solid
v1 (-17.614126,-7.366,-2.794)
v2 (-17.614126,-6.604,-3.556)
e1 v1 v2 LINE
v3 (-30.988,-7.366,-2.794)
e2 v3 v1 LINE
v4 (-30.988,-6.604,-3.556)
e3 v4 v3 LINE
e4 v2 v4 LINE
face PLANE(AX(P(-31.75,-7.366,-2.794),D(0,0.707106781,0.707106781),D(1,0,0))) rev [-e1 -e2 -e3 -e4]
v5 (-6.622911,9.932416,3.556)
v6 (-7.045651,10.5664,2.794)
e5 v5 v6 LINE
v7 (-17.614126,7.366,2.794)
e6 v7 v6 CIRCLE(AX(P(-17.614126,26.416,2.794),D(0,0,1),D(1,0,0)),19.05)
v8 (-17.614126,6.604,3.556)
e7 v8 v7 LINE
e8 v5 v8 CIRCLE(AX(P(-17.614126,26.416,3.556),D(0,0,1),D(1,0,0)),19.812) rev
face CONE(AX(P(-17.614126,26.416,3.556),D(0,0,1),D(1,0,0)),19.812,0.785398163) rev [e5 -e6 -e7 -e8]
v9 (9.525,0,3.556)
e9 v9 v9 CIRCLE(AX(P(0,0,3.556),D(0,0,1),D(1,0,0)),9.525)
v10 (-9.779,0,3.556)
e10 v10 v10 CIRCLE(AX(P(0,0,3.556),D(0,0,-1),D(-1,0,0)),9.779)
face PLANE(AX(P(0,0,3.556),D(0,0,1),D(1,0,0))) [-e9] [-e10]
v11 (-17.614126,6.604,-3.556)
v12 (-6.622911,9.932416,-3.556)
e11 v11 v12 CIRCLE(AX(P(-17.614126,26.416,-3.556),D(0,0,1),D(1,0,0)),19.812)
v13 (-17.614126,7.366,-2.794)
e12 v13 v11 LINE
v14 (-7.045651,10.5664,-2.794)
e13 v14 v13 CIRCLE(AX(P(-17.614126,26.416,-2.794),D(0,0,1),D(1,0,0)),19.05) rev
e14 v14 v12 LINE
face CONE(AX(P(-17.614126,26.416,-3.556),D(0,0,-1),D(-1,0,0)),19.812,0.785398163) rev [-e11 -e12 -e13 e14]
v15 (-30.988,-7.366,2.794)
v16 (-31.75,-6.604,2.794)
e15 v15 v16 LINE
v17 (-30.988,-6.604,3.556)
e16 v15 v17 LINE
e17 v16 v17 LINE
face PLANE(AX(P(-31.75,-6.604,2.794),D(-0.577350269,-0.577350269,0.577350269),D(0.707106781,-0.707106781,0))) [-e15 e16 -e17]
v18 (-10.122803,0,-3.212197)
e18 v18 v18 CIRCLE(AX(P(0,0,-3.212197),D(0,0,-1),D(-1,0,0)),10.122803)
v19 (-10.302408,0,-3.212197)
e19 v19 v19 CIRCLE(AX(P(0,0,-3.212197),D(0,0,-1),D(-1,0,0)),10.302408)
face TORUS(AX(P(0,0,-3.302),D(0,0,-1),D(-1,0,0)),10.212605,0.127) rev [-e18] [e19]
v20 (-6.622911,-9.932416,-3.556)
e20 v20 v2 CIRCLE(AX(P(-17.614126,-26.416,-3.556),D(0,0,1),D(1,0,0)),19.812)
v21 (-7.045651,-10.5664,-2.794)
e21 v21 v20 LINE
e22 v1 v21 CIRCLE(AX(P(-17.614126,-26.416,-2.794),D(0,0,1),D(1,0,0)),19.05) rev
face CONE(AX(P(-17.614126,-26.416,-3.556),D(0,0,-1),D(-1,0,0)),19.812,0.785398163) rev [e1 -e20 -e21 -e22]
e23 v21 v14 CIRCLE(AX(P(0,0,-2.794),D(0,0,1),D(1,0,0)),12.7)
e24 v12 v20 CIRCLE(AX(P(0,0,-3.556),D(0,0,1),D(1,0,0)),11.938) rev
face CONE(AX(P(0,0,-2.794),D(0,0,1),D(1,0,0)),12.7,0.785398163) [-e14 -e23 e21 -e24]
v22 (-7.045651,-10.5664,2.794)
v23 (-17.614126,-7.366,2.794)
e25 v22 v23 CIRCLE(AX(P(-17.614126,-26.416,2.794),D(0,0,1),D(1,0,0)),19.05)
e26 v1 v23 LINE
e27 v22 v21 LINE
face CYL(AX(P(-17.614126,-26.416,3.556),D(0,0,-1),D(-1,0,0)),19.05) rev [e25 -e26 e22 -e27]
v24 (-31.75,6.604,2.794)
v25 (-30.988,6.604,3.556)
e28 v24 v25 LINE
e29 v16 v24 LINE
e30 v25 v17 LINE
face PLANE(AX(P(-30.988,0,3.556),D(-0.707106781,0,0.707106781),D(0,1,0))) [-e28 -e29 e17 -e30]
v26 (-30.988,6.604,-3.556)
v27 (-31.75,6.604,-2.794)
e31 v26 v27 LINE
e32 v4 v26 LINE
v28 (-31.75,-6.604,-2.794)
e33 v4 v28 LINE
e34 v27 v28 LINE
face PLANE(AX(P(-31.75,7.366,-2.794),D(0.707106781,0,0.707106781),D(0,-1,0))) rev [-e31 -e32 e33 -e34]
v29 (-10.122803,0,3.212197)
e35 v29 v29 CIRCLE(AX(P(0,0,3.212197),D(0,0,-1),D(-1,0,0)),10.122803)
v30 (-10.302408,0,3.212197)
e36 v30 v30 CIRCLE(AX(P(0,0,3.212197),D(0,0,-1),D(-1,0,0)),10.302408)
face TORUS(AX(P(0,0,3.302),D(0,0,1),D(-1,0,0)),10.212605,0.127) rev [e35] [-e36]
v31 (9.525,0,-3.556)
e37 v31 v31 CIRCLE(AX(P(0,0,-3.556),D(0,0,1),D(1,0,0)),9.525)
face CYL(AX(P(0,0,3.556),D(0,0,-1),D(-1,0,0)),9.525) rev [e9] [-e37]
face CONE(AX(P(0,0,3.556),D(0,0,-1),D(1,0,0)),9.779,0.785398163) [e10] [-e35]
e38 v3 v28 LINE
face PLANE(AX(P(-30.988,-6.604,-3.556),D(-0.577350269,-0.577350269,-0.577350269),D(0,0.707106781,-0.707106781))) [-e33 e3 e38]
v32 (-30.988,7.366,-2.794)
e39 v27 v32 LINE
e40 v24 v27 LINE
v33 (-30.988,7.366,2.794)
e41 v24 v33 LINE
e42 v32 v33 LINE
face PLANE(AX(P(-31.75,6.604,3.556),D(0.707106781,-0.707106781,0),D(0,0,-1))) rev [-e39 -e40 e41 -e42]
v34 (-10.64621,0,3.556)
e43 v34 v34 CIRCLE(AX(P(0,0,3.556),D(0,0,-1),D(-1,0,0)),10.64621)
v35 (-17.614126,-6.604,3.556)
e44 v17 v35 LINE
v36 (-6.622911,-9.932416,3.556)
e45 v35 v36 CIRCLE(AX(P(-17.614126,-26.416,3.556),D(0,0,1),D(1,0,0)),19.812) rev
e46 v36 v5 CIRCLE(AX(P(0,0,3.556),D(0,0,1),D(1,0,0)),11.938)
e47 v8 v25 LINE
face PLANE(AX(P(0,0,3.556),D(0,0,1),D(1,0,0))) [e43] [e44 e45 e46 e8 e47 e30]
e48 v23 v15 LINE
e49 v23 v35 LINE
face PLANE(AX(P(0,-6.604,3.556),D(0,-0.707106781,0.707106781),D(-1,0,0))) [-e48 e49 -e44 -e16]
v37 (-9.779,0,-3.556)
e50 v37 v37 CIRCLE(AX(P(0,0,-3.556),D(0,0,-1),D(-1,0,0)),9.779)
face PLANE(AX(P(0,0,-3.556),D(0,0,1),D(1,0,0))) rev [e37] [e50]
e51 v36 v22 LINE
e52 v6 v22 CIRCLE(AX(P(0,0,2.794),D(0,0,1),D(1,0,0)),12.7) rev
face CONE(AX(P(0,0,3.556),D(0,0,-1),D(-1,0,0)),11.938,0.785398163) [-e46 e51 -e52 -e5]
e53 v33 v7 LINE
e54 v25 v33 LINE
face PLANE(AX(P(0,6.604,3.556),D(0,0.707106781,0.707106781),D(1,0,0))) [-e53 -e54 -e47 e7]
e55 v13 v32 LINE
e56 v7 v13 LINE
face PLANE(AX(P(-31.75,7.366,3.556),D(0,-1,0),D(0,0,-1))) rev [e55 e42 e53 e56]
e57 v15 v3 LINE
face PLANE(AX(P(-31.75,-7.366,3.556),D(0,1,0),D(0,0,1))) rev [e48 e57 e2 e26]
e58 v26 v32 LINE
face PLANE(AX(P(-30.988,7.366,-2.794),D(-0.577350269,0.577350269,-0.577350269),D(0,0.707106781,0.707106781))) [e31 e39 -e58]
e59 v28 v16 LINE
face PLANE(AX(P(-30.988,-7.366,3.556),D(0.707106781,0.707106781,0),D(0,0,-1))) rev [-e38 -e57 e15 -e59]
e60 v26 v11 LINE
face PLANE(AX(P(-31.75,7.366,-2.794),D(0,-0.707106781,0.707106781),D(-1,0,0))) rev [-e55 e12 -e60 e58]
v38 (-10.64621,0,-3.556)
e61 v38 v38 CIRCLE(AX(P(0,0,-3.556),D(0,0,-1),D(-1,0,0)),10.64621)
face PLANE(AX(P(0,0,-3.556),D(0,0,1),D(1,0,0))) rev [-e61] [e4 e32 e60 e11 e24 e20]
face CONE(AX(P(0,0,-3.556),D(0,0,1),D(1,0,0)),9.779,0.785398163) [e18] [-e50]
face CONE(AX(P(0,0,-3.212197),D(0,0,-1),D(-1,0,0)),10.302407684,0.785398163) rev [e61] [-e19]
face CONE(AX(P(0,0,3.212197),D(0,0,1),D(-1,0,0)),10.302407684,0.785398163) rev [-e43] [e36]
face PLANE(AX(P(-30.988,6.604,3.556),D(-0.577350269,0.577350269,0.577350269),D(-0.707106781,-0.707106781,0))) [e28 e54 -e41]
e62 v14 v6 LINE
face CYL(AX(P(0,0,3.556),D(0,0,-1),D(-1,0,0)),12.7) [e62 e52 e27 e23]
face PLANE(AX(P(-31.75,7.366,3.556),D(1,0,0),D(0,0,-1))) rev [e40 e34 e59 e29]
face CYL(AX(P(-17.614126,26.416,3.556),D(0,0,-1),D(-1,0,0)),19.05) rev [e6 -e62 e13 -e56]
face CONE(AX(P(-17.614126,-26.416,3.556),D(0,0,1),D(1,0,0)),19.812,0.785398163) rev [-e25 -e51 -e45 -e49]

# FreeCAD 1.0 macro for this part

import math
import FreeCAD as App
import Part
import Sketcher
Q = App.Units.Quantity


def edges_at(feature, points):
    """Names of the edges that pass closest to the given points."""
    edges = feature.Shape.Edges
    near = lambda p: min(range(len(edges)), key=lambda i: edges[i].distToShape(Part.Vertex(*p))[0])
    return sorted({f"Edge{near(p) + 1}" for p in points})

doc = App.newDocument("Part")
body = doc.addObject("PartDesign::Body", "Body")

sketch1 = body.newObject("Sketcher::SketchObject", "Sketch")
sketch1.AttachmentSupport = (doc.getObject("XY_Plane"), [""])
sketch1.MapMode = "FlatFace"
sketch1.addGeometry(Part.LineSegment(App.Vector(-32, 7, 0), App.Vector(-32, -7, 0)), False)
sketch1.addGeometry(Part.LineSegment(App.Vector(-32, -7, 0), App.Vector(-10, -7, 0)), False)
sketch1.addGeometry(Part.ArcOfCircle(Part.Circle(App.Vector(0, 0, 0), App.Vector(0, 0, 1), 13), math.radians(-145), math.radians(145)), False)
sketch1.addGeometry(Part.LineSegment(App.Vector(-10, 7, 0), App.Vector(-32, 7, 0)), False)
sketch1.addGeometry(Part.Circle(App.Vector(0, 0, 0), App.Vector(0, 0, 1), 10), False)
sketch1.addConstraint(Sketcher.Constraint("Coincident", 0, 2, 1, 1))
sketch1.addConstraint(Sketcher.Constraint("Coincident", 1, 2, 2, 1))
sketch1.addConstraint(Sketcher.Constraint("Coincident", 2, 2, 3, 1))
sketch1.addConstraint(Sketcher.Constraint("Coincident", 3, 2, 0, 1))
sketch1.addConstraint(Sketcher.Constraint("Vertical", 0))
sketch1.addConstraint(Sketcher.Constraint("Horizontal", 1))
sketch1.addConstraint(Sketcher.Constraint("Horizontal", 3))
sketch1.addConstraint(Sketcher.Constraint("Coincident", 2, 3, -1, 1))
sketch1.addConstraint(Sketcher.Constraint("Coincident", 4, 3, -1, 1))
sketch1.addConstraint(Sketcher.Constraint("Vertical", 1, 2, 2, 2))
sketch1.addConstraint(Sketcher.Constraint("Radius", 2, Q("0.5 in")))
sketch1.addConstraint(Sketcher.Constraint("Diameter", 4, Q("0.75 in")))
sketch1.addConstraint(Sketcher.Constraint("DistanceY", 0, 2, 0, 1, Q("0.58 in")))
sketch1.addConstraint(Sketcher.Constraint("DistanceX", 0, 2, -1, 1, Q("1.25 in")))
pad1 = body.newObject("PartDesign::Pad", "Pad")
pad1.Profile = sketch1
pad1.Length = Q("0.28 in")
pad1.Midplane = True
doc.recompute()

fillet = body.newObject("PartDesign::Fillet", "Fillet")
fillet.Base = (pad1, edges_at(pad1, [(-10.346, 7.366, 0), (-10.346, -7.366, 0)]))
fillet.Radius = Q("0.75 in")
doc.recompute()

chamfer = body.newObject("PartDesign::Chamfer", "Chamfer")
chamfer.Base = (fillet, edges_at(fillet, [
    (-24.682, -7.366, 3.556),
    (-24.682, 7.366, -3.556),
    (-24.682, 7.366, 3.556),
    (12.7, 0, -3.556),
    (12.7, 0, 3.556),
    (-12.093, 8.184, -3.556),
    (-12.093, 8.184, 3.556),
    (-12.093, -8.184, -3.556),
    (-12.093, -8.184, 3.556),
    (-24.682, -7.366, -3.556),
    (-31.75, 0, -3.556),
    (-31.75, -7.366, 0),
    (-31.75, 7.366, 0),
    (-31.75, 0, 3.556),
]))
chamfer.Size = Q("0.03 in")

sketch2 = body.newObject("Sketcher::SketchObject", "Sketch001")
sketch2.AttachmentSupport = (doc.getObject("XZ_Plane"), [""])
sketch2.MapMode = "FlatFace"
sketch2.addGeometry(Part.LineSegment(App.Vector(10.3, -3.21, 0), App.Vector(10.65, -3.56, 0)), False)
sketch2.addGeometry(Part.LineSegment(App.Vector(10.65, -3.56, 0), App.Vector(9.78, -3.56, 0)), False)
sketch2.addGeometry(Part.LineSegment(App.Vector(9.78, -3.56, 0), App.Vector(10.12, -3.21, 0)), False)
sketch2.addGeometry(Part.ArcOfCircle(Part.Circle(App.Vector(10.21, -3.3, 0), App.Vector(0, 0, 1), 0.13), math.radians(45), math.radians(135)), False)
sketch2.addConstraint(Sketcher.Constraint("Coincident", 0, 2, 1, 1))
sketch2.addConstraint(Sketcher.Constraint("Coincident", 1, 2, 2, 1))
sketch2.addConstraint(Sketcher.Constraint("Tangent", 2, 2, 3, 2))
sketch2.addConstraint(Sketcher.Constraint("Tangent", 3, 1, 0, 1))
sketch2.addConstraint(Sketcher.Constraint("Horizontal", 1))
sketch2.addConstraint(Sketcher.Constraint("Perpendicular", 0, 2))
sketch2.addConstraint(Sketcher.Constraint("Horizontal", 2, 2, 3, 1))
sketch2.addConstraint(Sketcher.Constraint("Radius", 3, Q("0.005 in")))
sketch2.addConstraint(Sketcher.Constraint("DistanceY", 3, 3, -1, 1, Q("0.13 in")))
sketch2.addConstraint(Sketcher.Constraint("DistanceY", 0, 2, -1, 1, Q("0.14 in")))
sketch2.addConstraint(Sketcher.Constraint("DistanceX", -1, 1, 1, 2, Q("0.385 in")))
groove = body.newObject("PartDesign::Groove", "Groove")
groove.Profile = sketch2
groove.ReferenceAxis = (sketch2, ["V_Axis"])
groove.Angle = 360
doc.recompute()

mirrored = body.newObject("PartDesign::Mirrored", "Mirrored")
mirrored.Originals = [groove]
mirrored.MirrorPlane = (doc.getObject("XY_Plane"), [""])
body.Tip = mirrored

doc.recompute()
